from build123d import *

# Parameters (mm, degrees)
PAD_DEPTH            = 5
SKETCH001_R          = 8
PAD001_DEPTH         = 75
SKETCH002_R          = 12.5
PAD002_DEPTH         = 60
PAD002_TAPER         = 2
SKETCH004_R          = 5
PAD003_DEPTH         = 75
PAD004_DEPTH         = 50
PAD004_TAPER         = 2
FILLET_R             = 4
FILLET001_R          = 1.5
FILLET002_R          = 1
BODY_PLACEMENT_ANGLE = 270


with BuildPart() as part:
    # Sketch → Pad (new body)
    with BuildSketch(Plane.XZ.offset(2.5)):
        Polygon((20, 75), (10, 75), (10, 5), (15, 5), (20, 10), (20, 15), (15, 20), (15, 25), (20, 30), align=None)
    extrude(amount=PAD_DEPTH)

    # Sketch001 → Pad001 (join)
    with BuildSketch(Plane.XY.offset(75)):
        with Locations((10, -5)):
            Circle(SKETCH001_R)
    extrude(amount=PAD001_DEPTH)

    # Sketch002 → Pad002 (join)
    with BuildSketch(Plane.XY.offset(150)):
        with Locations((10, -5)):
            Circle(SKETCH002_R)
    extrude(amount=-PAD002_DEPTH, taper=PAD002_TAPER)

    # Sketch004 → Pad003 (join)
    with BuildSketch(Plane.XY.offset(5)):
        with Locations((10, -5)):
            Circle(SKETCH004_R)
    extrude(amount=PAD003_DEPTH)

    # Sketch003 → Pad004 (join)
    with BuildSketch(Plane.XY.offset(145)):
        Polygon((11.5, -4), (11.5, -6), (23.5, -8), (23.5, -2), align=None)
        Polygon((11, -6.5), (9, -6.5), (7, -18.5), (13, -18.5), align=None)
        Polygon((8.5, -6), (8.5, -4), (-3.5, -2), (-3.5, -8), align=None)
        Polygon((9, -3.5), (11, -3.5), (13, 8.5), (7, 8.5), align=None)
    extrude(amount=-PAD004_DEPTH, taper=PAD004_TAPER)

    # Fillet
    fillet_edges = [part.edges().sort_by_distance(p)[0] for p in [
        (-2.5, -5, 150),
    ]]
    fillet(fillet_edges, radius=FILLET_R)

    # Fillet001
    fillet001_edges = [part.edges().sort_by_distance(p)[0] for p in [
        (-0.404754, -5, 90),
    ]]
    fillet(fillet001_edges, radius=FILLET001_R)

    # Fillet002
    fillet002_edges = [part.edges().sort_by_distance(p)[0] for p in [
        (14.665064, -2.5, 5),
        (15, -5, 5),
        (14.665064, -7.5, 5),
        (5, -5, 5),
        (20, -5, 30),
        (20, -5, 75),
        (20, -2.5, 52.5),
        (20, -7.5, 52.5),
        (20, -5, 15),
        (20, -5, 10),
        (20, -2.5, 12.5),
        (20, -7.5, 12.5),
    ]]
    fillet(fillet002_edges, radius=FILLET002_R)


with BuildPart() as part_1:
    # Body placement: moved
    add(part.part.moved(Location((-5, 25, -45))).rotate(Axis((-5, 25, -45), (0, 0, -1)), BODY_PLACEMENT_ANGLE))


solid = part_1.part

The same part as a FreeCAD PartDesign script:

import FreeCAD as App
import Part
import Sketcher

V = App.Vector
Q = App.Units.Quantity


def edges_at(feature, points):
    """Names of the edges that pass closest to the given points."""
    edges = feature.Shape.Edges
    near = lambda p: min(range(len(edges)), key=lambda i: edges[i].distToShape(Part.Vertex(*p))[0])
    return sorted({f"Edge{near(p) + 1}" for p in points})


def add_polygon(sketch, points):
    """Adds a closed chain of lines whose ends are joined by coincident constraints."""
    first, n = sketch.GeometryCount, len(points)
    for a, b in zip(points, points[1:] + points[:1]):
        sketch.addGeometry(Part.LineSegment(App.Vector(*a, 0), App.Vector(*b, 0)), False)
    for i in range(n):
        sketch.addConstraint(Sketcher.Constraint("Coincident", first + i, 2, first + (i + 1) % n, 1))

doc = App.newDocument("Part")
body = doc.addObject("PartDesign::Body", "Body")

sketch1 = body.newObject("Sketcher::SketchObject", "Sketch")
sketch1.AttachmentSupport = (doc.getObject("XZ_Plane"), [""])
sketch1.MapMode = "FlatFace"
sketch1.AttachmentOffset = App.Placement(V(0, 0, 2.5), App.Rotation())
add_polygon(sketch1, [(20, 75), (10, 75), (10, 5), (15, 5), (20, 10), (20, 15), (15, 20), (15, 25), (20, 30)])
sketch1.addConstraint([
    Sketcher.Constraint("Horizontal", 0),
    Sketcher.Constraint("Vertical", 1),
    Sketcher.Constraint("Horizontal", 2),
    Sketcher.Constraint("Vertical", 4),
    Sketcher.Constraint("Vertical", 6),
    Sketcher.Constraint("Vertical", 8),
    Sketcher.Constraint("Perpendicular", 3, 5),
    Sketcher.Constraint("Perpendicular", 5, 7),
    Sketcher.Constraint("Vertical", 2, 2, 5, 2),
    Sketcher.Constraint("Vertical", 4, 2, 7, 2),
    Sketcher.Constraint("Equal", 2, 4),
    Sketcher.Constraint("Equal", 4, 6),
    Sketcher.Constraint("Equal", 3, 5),
    Sketcher.Constraint("DistanceX", 0, 2, 0, 1, Q("10 mm")),
    Sketcher.Constraint("DistanceX", 2, 1, 2, 2, Q("5 mm")),
    Sketcher.Constraint("DistanceY", 1, 2, 1, 1, Q("70 mm")),
    Sketcher.Constraint("DistanceX", -1, 1, 0, 2, Q("10 mm")),
    Sketcher.Constraint("DistanceY", -1, 1, 0, 2, Q("75 mm")),
])
pad1 = body.newObject("PartDesign::Pad", "Pad")
pad1.Profile = sketch1
pad1.Length = 5

sketch2 = body.newObject("Sketcher::SketchObject", "Sketch001")
sketch2.AttachmentSupport = (doc.getObject("XY_Plane"), [""])
sketch2.MapMode = "FlatFace"
sketch2.AttachmentOffset = App.Placement(V(0, 0, 75), App.Rotation())
sketch2.addGeometry(Part.Circle(V(10, -5, 0), V(0, 0, 1), 8), False)
sketch2.addConstraint([
    Sketcher.Constraint("Diameter", 0, Q("16 mm")),
    Sketcher.Constraint("DistanceX", -1, 1, 0, 3, Q("10 mm")),
    Sketcher.Constraint("DistanceY", 0, 3, -1, 1, Q("5 mm")),
])
pad2 = body.newObject("PartDesign::Pad", "Pad001")
pad2.Profile = sketch2
pad2.Length = 75

sketch3 = body.newObject("Sketcher::SketchObject", "Sketch002")
sketch3.AttachmentSupport = (doc.getObject("XY_Plane"), [""])
sketch3.MapMode = "FlatFace"
sketch3.AttachmentOffset = App.Placement(V(0, 0, 150), App.Rotation())
sketch3.addGeometry(Part.Circle(V(10, -5, 0), V(0, 0, 1), 12), False)
sketch3.addConstraint([
    Sketcher.Constraint("Diameter", 0, Q("25 mm")),
    Sketcher.Constraint("DistanceX", -1, 1, 0, 3, Q("10 mm")),
    Sketcher.Constraint("DistanceY", 0, 3, -1, 1, Q("5 mm")),
])
pad3 = body.newObject("PartDesign::Pad", "Pad002")
pad3.Profile = sketch3
pad3.Length = 60
pad3.Reversed = True
pad3.TaperAngle = -2

sketch4 = body.newObject("Sketcher::SketchObject", "Sketch003")
sketch4.AttachmentSupport = (doc.getObject("XY_Plane"), [""])
sketch4.MapMode = "FlatFace"
sketch4.AttachmentOffset = App.Placement(V(0, 0, 5), App.Rotation())
sketch4.addGeometry(Part.Circle(V(10, -5, 0), V(0, 0, 1), 5), False)
sketch4.addConstraint([
    Sketcher.Constraint("Diameter", 0, Q("10 mm")),
    Sketcher.Constraint("DistanceX", -1, 1, 0, 3, Q("10 mm")),
    Sketcher.Constraint("DistanceY", 0, 3, -1, 1, Q("5 mm")),
])
pad4 = body.newObject("PartDesign::Pad", "Pad003")
pad4.Profile = sketch4
pad4.Length = 75

sketch5 = body.newObject("Sketcher::SketchObject", "Sketch004")
sketch5.AttachmentSupport = (doc.getObject("XY_Plane"), [""])
sketch5.MapMode = "FlatFace"
sketch5.AttachmentOffset = App.Placement(V(0, 0, 145), App.Rotation())
add_polygon(sketch5, [(11.5, -4), (11.5, -6), (23.5, -8), (23.5, -2)])
add_polygon(sketch5, [(11, -6.5), (9, -6.5), (7, -18.5), (13, -18.5)])
add_polygon(sketch5, [(8.5, -6), (8.5, -4), (-3.5, -2), (-3.5, -8)])
add_polygon(sketch5, [(9, -3.5), (11, -3.5), (13, 8.5), (7, 8.5)])
sketch5.addConstraint([
    Sketcher.Constraint("Vertical", 0),
    Sketcher.Constraint("Vertical", 2),
    Sketcher.Constraint("Horizontal", 4),
    Sketcher.Constraint("Horizontal", 6),
    Sketcher.Constraint("Vertical", 8),
    Sketcher.Constraint("Vertical", 10),
    Sketcher.Constraint("Horizontal", 12),
    Sketcher.Constraint("Horizontal", 14),
    Sketcher.Constraint("Perpendicular", 1, 5),
    Sketcher.Constraint("Perpendicular", 3, 7),
    Sketcher.Constraint("Perpendicular", 5, 9),
    Sketcher.Constraint("Perpendicular", 7, 11),
    Sketcher.Constraint("Perpendicular", 9, 13),
    Sketcher.Constraint("Perpendicular", 11, 15),
    Sketcher.Constraint("Horizontal", 3, 2, 8, 2),
    Sketcher.Constraint("Horizontal", 2, 2, 9, 2),
    Sketcher.Constraint("Horizontal", 1, 2, 10, 2),
    Sketcher.Constraint("Horizontal", 0, 2, 11, 2),
    Sketcher.Constraint("Vertical", 7, 2, 12, 2),
    Sketcher.Constraint("Vertical", 6, 2, 13, 2),
    Sketcher.Constraint("Vertical", 5, 2, 14, 2),
    Sketcher.Constraint("Equal", 12, 0),
    Sketcher.Constraint("Equal", 14, 2),
    Sketcher.Constraint("DistanceX", 4, 2, 4, 1, Q("2 mm")),
    Sketcher.Constraint("DistanceX", 6, 1, 6, 2, Q("6 mm")),
    Sketcher.Constraint("DistanceY", 0, 2, -1, 1, Q("6 mm")),
    Sketcher.Constraint("DistanceX", -1, 1, 4, 2, Q("9 mm")),
    Sketcher.Constraint("DistanceX", 0, 2, 1, 2, Q("12 mm")),
    Sketcher.Constraint("DistanceX", 8, 2, 3, 2, Q("3 mm")),
    Sketcher.Constraint("DistanceY", 7, 2, 12, 2, Q("3 mm")),
    Sketcher.Constraint("DistanceX", -1, 1, 0, 2, Q("11.5 mm")),
    Sketcher.Constraint("DistanceY", 4, 2, -1, 1, Q("6.5 mm")),
])
pad5 = body.newObject("PartDesign::Pad", "Pad004")
pad5.Profile = sketch5
pad5.Length = 50
pad5.Reversed = True
pad5.TaperAngle = -2
doc.recompute()

fillet = body.newObject("PartDesign::Fillet", "Fillet")
fillet.Base = (pad5, edges_at(pad5, [(-2.5, -5, 150)]))
fillet.Radius = 4
doc.recompute()

fillet2 = body.newObject("PartDesign::Fillet", "Fillet001")
fillet2.Base = (fillet, edges_at(fillet, [(-0.405, -5, 90)]))
fillet2.Radius = 1.5
doc.recompute()

fillet3 = body.newObject("PartDesign::Fillet", "Fillet002")
fillet3.Base = (fillet2, edges_at(fillet2, [
    (14.665, -2.5, 5),
    (15, -5, 5),
    (14.665, -7.5, 5),
    (5, -5, 5),
    (20, -5, 30),
    (20, -5, 75),
    (20, -2.5, 52.5),
    (20, -7.5, 52.5),
    (20, -5, 15),
    (20, -5, 10),
    (20, -2.5, 12.5),
    (20, -7.5, 12.5),
]))
fillet3.Radius = 1
body2 = doc.addObject("PartDesign::Body", "Body001")
doc.recompute()

body.Placement = App.Placement(V(-5, 25, -45), App.Rotation(V(0, 0, -1), 270))
boolean = body2.newObject("PartDesign::Boolean", "Boolean")
boolean.Type = "Fuse"
boolean.addObjects([body])

doc.recompute()
